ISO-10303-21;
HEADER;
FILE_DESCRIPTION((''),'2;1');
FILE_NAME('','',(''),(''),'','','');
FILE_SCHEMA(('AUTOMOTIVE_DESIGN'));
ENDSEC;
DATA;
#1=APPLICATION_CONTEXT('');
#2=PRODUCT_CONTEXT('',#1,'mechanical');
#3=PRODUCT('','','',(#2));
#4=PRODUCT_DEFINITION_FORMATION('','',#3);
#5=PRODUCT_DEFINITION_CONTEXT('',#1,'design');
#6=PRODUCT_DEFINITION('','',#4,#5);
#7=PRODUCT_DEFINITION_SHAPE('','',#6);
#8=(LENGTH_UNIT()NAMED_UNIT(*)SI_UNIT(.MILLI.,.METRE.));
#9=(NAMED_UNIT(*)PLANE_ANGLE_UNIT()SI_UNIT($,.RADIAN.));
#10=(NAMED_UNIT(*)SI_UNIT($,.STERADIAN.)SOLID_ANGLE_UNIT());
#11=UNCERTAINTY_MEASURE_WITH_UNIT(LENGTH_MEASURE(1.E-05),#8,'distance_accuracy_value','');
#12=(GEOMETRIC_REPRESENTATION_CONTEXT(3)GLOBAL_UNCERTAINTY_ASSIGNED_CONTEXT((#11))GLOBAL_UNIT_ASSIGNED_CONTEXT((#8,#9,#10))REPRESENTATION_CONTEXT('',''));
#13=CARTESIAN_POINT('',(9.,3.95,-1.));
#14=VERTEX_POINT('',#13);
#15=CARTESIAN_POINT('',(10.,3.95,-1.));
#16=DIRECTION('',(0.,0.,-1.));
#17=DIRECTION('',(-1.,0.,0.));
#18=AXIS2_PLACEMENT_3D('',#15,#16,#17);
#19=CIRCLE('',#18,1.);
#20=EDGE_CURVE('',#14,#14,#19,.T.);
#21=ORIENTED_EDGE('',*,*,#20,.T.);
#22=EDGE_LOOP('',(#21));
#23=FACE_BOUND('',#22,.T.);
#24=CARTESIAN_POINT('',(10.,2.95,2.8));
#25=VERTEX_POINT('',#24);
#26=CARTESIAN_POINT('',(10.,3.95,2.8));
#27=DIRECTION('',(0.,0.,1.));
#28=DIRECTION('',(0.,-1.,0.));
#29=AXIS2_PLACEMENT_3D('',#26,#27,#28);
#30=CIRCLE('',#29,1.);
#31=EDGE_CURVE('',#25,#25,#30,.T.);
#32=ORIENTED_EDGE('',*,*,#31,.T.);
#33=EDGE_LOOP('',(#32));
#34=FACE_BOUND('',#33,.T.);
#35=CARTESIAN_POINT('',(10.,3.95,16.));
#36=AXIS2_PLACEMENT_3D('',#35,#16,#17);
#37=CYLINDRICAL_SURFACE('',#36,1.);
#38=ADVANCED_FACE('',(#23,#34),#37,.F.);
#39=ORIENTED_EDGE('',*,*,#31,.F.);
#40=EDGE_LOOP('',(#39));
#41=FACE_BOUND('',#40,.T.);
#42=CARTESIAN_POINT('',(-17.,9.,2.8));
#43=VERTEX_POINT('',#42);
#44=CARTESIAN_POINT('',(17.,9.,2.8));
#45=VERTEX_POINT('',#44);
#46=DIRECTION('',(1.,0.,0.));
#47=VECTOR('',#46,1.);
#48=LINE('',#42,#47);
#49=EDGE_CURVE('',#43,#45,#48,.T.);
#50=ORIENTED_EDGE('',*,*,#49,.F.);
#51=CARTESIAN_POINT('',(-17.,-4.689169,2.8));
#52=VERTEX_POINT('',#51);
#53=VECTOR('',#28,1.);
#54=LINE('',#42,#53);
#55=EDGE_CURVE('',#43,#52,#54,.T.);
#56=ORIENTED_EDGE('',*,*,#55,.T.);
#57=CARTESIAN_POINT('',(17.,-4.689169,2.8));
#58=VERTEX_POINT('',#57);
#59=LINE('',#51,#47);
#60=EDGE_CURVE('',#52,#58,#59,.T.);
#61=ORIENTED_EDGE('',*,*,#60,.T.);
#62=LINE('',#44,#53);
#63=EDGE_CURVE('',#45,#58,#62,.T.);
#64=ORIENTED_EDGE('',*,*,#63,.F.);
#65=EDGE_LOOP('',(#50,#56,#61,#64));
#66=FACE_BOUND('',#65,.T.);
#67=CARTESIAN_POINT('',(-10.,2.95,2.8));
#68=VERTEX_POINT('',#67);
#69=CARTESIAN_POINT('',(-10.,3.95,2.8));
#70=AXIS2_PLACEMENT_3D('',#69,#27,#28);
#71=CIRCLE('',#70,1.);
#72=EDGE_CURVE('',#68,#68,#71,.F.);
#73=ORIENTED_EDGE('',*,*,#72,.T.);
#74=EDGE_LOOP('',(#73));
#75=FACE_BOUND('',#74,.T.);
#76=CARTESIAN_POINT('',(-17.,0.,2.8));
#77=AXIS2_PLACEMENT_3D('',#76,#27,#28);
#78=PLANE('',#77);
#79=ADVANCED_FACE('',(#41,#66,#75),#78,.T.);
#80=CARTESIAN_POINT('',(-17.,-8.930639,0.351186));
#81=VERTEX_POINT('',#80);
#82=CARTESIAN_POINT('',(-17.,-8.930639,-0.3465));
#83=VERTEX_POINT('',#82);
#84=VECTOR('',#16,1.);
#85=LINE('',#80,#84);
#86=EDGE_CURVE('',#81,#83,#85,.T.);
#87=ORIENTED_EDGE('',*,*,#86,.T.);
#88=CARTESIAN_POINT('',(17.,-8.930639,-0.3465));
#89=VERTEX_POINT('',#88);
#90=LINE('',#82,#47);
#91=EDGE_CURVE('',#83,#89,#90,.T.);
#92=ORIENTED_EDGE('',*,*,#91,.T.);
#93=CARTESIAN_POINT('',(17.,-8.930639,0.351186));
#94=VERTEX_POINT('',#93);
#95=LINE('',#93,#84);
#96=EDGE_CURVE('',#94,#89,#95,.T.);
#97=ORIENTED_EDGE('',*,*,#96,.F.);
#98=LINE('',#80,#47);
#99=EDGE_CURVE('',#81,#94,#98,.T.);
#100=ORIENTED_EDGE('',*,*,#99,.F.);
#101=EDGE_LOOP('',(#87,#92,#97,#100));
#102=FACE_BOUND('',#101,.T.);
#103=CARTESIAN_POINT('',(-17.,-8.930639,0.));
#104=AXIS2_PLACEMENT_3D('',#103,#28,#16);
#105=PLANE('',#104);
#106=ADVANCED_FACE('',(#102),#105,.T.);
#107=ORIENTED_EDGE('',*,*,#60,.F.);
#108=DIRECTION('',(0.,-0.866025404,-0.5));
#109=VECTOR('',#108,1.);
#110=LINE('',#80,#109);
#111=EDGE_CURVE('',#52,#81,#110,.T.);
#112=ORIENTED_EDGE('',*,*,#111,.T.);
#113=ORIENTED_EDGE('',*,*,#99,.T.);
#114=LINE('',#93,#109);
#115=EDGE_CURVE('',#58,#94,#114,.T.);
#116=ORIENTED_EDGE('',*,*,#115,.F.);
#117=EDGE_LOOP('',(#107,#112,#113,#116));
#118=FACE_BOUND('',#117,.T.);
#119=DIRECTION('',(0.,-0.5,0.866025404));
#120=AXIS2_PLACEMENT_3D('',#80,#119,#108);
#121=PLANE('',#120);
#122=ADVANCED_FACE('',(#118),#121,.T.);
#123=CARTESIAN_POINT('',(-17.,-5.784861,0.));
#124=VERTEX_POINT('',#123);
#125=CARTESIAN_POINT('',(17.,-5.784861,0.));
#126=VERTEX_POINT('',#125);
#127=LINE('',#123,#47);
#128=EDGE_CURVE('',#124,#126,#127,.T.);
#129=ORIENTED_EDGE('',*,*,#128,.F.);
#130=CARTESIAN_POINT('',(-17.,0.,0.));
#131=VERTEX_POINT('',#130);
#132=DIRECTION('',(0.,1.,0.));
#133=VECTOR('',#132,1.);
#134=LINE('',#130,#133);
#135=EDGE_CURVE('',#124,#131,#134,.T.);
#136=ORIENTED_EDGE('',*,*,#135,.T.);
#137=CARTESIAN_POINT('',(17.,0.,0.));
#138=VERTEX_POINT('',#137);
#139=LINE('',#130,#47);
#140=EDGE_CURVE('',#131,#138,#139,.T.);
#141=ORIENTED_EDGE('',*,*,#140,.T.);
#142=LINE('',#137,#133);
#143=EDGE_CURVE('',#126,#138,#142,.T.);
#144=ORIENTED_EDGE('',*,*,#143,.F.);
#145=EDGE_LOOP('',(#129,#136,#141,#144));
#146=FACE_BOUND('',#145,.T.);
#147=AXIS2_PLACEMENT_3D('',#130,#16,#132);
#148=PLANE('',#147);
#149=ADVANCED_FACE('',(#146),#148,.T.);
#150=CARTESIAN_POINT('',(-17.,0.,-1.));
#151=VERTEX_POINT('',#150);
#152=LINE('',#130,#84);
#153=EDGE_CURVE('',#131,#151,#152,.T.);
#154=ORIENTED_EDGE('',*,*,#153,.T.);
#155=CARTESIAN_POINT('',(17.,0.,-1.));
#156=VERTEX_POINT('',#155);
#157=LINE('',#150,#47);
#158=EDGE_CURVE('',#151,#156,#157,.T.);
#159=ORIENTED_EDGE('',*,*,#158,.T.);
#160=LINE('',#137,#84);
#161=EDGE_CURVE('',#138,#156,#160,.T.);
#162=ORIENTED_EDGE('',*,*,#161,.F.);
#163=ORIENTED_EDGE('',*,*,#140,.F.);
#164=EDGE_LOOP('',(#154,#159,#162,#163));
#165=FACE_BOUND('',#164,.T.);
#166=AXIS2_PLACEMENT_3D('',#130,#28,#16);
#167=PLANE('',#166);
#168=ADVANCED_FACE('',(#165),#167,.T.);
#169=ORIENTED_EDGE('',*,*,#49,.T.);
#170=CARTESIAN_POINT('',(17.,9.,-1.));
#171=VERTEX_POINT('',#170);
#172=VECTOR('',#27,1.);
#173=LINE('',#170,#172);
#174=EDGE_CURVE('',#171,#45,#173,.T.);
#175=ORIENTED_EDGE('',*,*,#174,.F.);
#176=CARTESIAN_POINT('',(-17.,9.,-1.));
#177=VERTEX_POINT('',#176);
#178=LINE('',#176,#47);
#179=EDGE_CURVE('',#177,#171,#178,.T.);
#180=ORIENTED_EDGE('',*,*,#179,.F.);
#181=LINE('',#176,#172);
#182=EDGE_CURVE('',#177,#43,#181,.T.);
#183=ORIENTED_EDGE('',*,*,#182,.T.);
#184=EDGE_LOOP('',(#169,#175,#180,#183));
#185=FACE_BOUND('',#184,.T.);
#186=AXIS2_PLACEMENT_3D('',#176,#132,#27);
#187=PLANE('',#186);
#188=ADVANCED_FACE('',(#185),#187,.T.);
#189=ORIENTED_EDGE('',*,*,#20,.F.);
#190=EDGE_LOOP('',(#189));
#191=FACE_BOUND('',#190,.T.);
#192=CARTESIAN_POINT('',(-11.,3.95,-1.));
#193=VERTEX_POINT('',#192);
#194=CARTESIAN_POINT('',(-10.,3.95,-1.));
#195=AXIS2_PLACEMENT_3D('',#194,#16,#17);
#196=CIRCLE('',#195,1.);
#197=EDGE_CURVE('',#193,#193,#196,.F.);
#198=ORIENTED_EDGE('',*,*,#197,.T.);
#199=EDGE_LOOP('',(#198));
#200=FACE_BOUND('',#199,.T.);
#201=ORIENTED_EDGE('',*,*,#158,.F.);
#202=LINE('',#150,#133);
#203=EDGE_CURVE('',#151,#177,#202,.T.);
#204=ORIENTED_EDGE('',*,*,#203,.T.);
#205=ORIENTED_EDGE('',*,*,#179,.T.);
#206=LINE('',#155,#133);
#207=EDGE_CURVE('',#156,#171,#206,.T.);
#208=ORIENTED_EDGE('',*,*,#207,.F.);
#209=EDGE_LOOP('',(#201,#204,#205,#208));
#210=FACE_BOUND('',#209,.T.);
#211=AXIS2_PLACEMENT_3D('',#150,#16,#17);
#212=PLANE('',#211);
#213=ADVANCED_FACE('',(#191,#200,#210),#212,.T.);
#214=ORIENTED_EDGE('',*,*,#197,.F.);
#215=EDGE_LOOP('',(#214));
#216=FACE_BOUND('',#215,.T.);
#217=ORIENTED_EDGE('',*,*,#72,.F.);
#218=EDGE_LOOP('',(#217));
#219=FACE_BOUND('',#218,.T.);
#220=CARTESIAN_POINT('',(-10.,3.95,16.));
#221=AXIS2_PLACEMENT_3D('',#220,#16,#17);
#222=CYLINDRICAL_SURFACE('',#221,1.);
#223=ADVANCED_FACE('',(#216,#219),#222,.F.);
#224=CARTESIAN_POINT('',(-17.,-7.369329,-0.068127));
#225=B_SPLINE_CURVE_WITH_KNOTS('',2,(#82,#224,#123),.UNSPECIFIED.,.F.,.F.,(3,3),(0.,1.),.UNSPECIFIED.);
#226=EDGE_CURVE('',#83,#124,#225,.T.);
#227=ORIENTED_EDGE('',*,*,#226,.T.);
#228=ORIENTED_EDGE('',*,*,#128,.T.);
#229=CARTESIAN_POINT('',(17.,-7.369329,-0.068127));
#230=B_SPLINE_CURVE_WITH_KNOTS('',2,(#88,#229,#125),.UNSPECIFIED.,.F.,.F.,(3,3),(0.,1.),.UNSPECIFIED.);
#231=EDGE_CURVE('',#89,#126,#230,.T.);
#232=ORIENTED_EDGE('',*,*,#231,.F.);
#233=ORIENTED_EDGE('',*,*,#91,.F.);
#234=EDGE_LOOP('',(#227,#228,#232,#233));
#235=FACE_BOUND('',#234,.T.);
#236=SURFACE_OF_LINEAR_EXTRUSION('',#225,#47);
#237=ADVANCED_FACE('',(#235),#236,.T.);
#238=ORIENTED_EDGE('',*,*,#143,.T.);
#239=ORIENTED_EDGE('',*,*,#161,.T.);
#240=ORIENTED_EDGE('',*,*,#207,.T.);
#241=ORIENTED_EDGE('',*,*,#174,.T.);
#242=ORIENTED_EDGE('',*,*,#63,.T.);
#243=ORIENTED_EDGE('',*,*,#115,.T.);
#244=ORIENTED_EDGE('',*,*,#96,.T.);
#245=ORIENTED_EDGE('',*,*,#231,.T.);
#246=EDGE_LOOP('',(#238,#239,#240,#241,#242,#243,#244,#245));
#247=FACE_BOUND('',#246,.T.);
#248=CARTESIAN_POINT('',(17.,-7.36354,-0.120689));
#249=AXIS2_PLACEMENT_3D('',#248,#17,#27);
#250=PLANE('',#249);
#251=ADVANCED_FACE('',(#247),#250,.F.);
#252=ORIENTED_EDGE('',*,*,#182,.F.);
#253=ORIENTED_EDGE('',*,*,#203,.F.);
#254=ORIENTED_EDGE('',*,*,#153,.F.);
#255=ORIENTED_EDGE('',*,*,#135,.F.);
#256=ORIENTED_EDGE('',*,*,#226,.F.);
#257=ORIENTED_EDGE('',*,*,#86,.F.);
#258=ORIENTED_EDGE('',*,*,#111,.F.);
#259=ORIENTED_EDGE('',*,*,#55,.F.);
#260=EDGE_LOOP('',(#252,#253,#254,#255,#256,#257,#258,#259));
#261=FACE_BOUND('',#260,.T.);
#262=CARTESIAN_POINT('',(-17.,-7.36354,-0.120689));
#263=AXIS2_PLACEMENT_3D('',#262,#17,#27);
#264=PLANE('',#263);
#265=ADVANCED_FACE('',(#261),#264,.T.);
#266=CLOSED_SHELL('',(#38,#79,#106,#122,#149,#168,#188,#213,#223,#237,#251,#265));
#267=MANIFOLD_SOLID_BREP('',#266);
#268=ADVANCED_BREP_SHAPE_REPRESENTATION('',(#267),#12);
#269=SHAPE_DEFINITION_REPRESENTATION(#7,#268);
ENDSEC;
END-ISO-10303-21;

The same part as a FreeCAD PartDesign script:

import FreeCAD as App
import Part
import Sketcher
from FreeCAD import Vector
Q = App.Units.Quantity

doc = App.newDocument("Part")
body = doc.addObject("PartDesign::Body", "Body")

# Sketch on YZ plane
sketch1 = body.newObject("Sketcher::SketchObject", "Sketch")
sketch1.AttachmentSupport = (doc.getObject("YZ_Plane"), [""])
sketch1.MapMode = "FlatFace"
sketch1.addGeometry(Part.LineSegment(Vector(0, 0, 0), Vector(0, -1, 0)), False)
sketch1.addGeometry(Part.LineSegment(Vector(0, -1, 0), Vector(9, -1, 0)), False)
sketch1.addGeometry(Part.LineSegment(Vector(9, -1, 0), Vector(9, 2.8, 0)), False)
sketch1.addGeometry(Part.LineSegment(Vector(9, 2.8, 0), Vector(-4.689169, 2.8, 0)), False)
sketch1.addGeometry(Part.LineSegment(Vector(-4.689169, 2.8, 0), Vector(-8.930639, 0.351186, 0)), False)
sketch1.addGeometry(Part.LineSegment(Vector(-8.930639, 0.351186, 0), Vector(-8.930639, -0.3465, 0)), False)
sketch1.addGeometry(Part.BSplineCurve([Vector(-5.784861, 0, 0), Vector(-7.369329, -0.068127, 0), Vector(-8.930639, -0.3465, 0)], [3, 3], [0, 1], False, 2, [1, 1, 1], False), False)
sketch1.addGeometry(Part.LineSegment(Vector(-5.784861, 0, 0), Vector(0, 0, 0)), False)
sketch1.addConstraint(Sketcher.Constraint("Block", 6))
sketch1.addConstraint(Sketcher.Constraint("Coincident", 0, 2, 1, 1))
sketch1.addConstraint(Sketcher.Constraint("Coincident", 1, 2, 2, 1))
sketch1.addConstraint(Sketcher.Constraint("Coincident", 2, 2, 3, 1))
sketch1.addConstraint(Sketcher.Constraint("Coincident", 3, 2, 4, 1))
sketch1.addConstraint(Sketcher.Constraint("Coincident", 4, 2, 5, 1))
sketch1.addConstraint(Sketcher.Constraint("Coincident", 5, 2, 6, 2))
sketch1.addConstraint(Sketcher.Constraint("Coincident", 6, 1, 7, 1))
sketch1.addConstraint(Sketcher.Constraint("Coincident", 7, 2, 0, 1))
sketch1.addConstraint(Sketcher.Constraint("Vertical", 0))
sketch1.addConstraint(Sketcher.Constraint("Horizontal", 1))
sketch1.addConstraint(Sketcher.Constraint("Vertical", 2))
sketch1.addConstraint(Sketcher.Constraint("Horizontal", 3))
sketch1.addConstraint(Sketcher.Constraint("Vertical", 5))
sketch1.addConstraint(Sketcher.Constraint("Horizontal", 7))
sketch1.addConstraint(Sketcher.Constraint("PointOnObject", 0, 2, -2))
sketch1.addConstraint(Sketcher.Constraint("DistanceX", 1, 1, 1, 2, Q("9 mm")))
sketch1.addConstraint(Sketcher.Constraint("DistanceY", 0, 2, 0, 1, Q("1 mm")))
sketch1.addConstraint(Sketcher.Constraint("Angle", 4, Q("-150 deg")))
sketch1.addConstraint(Sketcher.Constraint("DistanceY", 2, 1, 2, 2, Q("3.8 mm")))
sketch1.addConstraint(Sketcher.Constraint("DistanceX", 3, 2, 3, 1, Q("13.689169 mm")))
pad1 = body.newObject("PartDesign::Pad", "Pad")
pad1.Profile = sketch1
pad1.Type = "TwoLengths"
pad1.Length = 17
pad1.Length2 = 17

# Sketch on XY plane
sketch2 = body.newObject("Sketcher::SketchObject", "Sketch001")
sketch2.AttachmentSupport = (doc.getObject("XY_Plane"), [""])
sketch2.MapMode = "FlatFace"
sketch2.AttachmentOffset = App.Placement(Vector(0, 0, -1), App.Rotation())
sketch2.addGeometry(Part.Circle(Vector(10, 4, 0), Vector(0, 0, 1), 1), False)
sketch2.addGeometry(Part.Circle(Vector(-10, 4, 0), Vector(0, 0, 1), 1), False)
sketch2.addConstraint(Sketcher.Constraint("Equal", 0, 1))
sketch2.addConstraint(Sketcher.Constraint("Symmetric", 0, 3, 1, 3, -2))
sketch2.addConstraint(Sketcher.Constraint("Diameter", 0, Q("2 mm")))
sketch2.addConstraint(Sketcher.Constraint("DistanceX", -1, 1, 0, 3, Q("10 mm")))
sketch2.addConstraint(Sketcher.Constraint("DistanceY", -1, 1, 0, 3, Q("3.95 mm")))
pocket1 = body.newObject("PartDesign::Pocket", "Pocket")
pocket1.Profile = sketch2
pocket1.Length = 17
pocket1.Reversed = True

doc.recompute()
